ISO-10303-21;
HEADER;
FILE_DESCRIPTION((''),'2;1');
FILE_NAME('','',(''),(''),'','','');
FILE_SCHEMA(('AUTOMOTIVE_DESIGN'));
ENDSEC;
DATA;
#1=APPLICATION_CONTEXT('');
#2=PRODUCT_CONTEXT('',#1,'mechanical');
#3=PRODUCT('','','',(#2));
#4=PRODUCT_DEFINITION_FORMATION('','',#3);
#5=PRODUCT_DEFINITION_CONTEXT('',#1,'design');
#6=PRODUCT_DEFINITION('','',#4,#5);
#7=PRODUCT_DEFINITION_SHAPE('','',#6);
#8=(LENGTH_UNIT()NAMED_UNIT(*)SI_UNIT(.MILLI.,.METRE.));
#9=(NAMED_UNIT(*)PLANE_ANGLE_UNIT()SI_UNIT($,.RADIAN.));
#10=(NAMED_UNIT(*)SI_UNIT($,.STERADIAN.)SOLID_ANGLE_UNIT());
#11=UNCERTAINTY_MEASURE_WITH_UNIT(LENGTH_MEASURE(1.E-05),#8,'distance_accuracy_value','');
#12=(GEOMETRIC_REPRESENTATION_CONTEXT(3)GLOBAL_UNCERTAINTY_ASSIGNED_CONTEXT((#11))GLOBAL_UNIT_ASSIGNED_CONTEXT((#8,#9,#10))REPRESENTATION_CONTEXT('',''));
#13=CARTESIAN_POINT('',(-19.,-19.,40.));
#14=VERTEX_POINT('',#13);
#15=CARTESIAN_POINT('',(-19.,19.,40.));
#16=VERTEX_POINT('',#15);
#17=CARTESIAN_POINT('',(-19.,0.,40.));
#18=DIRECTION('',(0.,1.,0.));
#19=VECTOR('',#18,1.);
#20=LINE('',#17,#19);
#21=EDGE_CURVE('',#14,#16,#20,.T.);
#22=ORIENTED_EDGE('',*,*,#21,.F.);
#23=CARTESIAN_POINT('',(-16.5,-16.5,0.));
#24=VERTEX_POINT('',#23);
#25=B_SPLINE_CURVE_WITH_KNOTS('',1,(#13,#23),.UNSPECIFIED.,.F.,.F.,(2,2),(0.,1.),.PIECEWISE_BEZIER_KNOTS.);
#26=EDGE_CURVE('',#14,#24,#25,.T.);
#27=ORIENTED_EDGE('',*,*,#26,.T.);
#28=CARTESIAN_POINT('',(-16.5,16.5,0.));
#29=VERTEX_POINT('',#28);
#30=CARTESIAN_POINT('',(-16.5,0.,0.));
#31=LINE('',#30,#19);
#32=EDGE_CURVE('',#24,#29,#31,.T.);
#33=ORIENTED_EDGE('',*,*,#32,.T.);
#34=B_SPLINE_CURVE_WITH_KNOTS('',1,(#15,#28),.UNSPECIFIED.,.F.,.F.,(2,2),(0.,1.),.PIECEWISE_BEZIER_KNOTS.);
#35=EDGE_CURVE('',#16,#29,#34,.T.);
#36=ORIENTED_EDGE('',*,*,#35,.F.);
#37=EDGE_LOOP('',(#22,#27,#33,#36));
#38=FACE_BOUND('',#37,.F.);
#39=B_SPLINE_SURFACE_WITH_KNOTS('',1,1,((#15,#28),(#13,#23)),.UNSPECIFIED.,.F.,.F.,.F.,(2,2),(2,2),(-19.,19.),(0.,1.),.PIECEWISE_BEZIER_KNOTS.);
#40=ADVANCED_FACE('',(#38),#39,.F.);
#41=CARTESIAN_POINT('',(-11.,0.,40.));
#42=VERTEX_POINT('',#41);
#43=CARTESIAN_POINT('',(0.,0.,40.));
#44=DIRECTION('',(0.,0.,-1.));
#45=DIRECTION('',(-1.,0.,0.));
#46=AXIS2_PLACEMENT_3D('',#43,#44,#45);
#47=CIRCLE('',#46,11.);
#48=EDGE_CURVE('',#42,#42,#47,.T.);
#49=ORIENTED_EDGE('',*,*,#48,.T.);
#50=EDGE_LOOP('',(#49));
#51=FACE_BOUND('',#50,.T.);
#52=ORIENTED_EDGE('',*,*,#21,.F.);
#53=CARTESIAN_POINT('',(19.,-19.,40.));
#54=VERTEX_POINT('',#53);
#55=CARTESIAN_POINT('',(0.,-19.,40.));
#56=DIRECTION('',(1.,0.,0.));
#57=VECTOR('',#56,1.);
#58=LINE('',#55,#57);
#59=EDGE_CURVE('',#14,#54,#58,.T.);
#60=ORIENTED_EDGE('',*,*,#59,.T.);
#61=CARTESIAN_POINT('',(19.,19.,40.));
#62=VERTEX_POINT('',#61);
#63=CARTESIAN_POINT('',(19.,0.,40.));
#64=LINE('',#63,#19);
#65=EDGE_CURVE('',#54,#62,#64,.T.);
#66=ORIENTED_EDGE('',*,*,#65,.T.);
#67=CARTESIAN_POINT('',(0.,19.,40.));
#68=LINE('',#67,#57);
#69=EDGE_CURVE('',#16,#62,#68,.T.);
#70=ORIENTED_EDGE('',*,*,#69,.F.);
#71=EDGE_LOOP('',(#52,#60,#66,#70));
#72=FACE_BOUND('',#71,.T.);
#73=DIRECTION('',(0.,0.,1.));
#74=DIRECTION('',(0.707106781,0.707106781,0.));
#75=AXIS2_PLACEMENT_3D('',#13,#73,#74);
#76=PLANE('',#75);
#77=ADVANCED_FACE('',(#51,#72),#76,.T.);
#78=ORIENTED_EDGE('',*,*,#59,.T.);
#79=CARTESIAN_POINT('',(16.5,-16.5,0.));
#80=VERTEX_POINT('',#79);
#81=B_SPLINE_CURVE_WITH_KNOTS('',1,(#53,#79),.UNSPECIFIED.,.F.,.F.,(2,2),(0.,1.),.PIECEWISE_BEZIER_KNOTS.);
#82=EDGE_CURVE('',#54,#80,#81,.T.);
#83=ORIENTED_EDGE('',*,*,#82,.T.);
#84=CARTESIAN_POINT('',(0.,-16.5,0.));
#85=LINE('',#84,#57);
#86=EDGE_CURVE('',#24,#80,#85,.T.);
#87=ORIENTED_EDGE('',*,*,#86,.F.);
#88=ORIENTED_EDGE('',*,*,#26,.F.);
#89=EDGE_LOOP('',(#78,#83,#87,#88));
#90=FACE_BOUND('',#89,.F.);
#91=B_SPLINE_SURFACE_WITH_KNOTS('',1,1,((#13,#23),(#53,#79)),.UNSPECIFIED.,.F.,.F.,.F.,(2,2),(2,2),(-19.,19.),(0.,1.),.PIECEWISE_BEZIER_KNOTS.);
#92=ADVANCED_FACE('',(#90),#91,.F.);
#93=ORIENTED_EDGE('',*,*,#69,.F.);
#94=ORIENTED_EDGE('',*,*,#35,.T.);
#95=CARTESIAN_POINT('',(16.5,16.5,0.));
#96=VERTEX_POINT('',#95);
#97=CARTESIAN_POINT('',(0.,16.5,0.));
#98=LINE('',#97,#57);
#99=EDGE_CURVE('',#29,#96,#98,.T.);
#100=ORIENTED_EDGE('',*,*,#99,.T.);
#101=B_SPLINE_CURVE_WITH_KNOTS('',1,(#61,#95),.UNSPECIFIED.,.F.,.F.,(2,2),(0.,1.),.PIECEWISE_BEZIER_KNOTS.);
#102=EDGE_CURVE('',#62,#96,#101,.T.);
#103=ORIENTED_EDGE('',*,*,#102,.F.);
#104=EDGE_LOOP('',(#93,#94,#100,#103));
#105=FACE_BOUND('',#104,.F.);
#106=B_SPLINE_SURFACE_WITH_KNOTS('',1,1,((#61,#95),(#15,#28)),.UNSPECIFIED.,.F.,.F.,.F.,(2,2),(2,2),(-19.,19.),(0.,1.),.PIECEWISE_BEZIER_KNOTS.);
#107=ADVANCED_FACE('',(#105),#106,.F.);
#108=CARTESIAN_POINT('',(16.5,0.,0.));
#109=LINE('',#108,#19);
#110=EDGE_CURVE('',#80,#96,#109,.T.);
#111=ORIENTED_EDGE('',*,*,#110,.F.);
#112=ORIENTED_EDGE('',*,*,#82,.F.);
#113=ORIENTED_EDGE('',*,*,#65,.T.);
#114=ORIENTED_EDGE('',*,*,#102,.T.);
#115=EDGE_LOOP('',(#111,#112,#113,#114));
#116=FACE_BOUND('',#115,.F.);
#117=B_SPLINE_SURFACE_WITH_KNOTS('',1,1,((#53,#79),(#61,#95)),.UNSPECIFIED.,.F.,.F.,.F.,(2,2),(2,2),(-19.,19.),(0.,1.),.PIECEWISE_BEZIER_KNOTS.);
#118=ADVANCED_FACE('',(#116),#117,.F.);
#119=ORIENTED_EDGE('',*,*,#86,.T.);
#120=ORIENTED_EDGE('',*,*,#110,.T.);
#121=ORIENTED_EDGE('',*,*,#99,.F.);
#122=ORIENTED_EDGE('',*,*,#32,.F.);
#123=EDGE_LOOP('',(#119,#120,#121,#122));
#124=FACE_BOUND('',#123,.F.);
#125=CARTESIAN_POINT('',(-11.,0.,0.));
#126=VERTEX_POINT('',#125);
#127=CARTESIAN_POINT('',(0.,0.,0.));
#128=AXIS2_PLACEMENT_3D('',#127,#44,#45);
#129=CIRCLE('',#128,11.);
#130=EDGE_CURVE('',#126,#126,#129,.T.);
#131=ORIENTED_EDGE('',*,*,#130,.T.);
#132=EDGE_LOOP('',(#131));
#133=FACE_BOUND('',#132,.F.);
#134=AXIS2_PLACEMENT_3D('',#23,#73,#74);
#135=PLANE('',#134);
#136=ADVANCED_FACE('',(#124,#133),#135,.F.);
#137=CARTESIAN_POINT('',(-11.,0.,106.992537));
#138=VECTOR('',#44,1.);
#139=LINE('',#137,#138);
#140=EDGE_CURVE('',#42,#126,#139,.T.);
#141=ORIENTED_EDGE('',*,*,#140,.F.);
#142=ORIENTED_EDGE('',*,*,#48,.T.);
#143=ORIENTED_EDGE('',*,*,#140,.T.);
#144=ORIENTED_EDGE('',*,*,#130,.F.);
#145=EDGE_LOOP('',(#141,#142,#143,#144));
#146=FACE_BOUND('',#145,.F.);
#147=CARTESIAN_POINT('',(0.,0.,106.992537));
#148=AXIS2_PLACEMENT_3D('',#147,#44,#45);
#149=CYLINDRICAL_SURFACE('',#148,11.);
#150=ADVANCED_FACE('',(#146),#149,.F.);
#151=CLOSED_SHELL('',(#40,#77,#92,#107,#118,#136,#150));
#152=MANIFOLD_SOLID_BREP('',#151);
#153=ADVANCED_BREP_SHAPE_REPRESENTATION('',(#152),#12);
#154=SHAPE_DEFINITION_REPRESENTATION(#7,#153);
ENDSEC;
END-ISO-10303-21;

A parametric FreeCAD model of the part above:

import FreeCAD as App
import Part
import Sketcher

V = App.Vector

doc = App.newDocument("Part")
body = doc.addObject("PartDesign::Body", "Body")

# Sketch on XY plane
sketch1 = body.newObject("Sketcher::SketchObject", "Sketch")
sketch1.AttachmentSupport = (doc.getObject("XY_Plane"), [""])
sketch1.MapMode = "FlatFace"
sketch1.AttachmentOffset = App.Placement(V(0, 0, 40), App.Rotation())
sketch1.addGeometry(Part.LineSegment(V(-19, 19, 0), V(-19, -19, 0)), False)
sketch1.addGeometry(Part.LineSegment(V(-19, -19, 0), V(19, -19, 0)), False)
sketch1.addGeometry(Part.LineSegment(V(19, -19, 0), V(19, 19, 0)), False)
sketch1.addGeometry(Part.LineSegment(V(19, 19, 0), V(-19, 19, 0)), False)
sketch1.addConstraint(Sketcher.Constraint("Coincident", 0, 2, 1, 1))
sketch1.addConstraint(Sketcher.Constraint("Coincident", 1, 2, 2, 1))
sketch1.addConstraint(Sketcher.Constraint("Coincident", 2, 2, 3, 1))
sketch1.addConstraint(Sketcher.Constraint("Coincident", 3, 2, 0, 1))
sketch1.addConstraint(Sketcher.Constraint("Vertical", 0))
sketch1.addConstraint(Sketcher.Constraint("Horizontal", 1))
sketch1.addConstraint(Sketcher.Constraint("Vertical", 2))
sketch1.addConstraint(Sketcher.Constraint("Horizontal", 3))
sketch1.addConstraint(Sketcher.Constraint("Symmetric", 0, 2, 2, 2, -1, 1))
sketch1.addConstraint(Sketcher.Constraint("Equal", 3, 0))
sketch1.addConstraint(Sketcher.Constraint("DistanceX", 1, 1, 1, 2, 38.0))

# Sketch on XY plane
sketch2 = body.newObject("Sketcher::SketchObject", "Sketch001")
sketch2.AttachmentSupport = (doc.getObject("XY_Plane"), [""])
sketch2.MapMode = "FlatFace"
sketch2.addGeometry(Part.LineSegment(V(-16.5, 16.5, 0), V(-16.5, -16.5, 0)), False)
sketch2.addGeometry(Part.LineSegment(V(-16.5, -16.5, 0), V(16.5, -16.5, 0)), False)
sketch2.addGeometry(Part.LineSegment(V(16.5, -16.5, 0), V(16.5, 16.5, 0)), False)
sketch2.addGeometry(Part.LineSegment(V(16.5, 16.5, 0), V(-16.5, 16.5, 0)), False)
sketch2.addConstraint(Sketcher.Constraint("Coincident", 0, 2, 1, 1))
sketch2.addConstraint(Sketcher.Constraint("Coincident", 1, 2, 2, 1))
sketch2.addConstraint(Sketcher.Constraint("Coincident", 2, 2, 3, 1))
sketch2.addConstraint(Sketcher.Constraint("Coincident", 3, 2, 0, 1))
sketch2.addConstraint(Sketcher.Constraint("Vertical", 0))
sketch2.addConstraint(Sketcher.Constraint("Horizontal", 1))
sketch2.addConstraint(Sketcher.Constraint("Vertical", 2))
sketch2.addConstraint(Sketcher.Constraint("Horizontal", 3))
sketch2.addConstraint(Sketcher.Constraint("Symmetric", 0, 2, 2, 2, -1, 1))
sketch2.addConstraint(Sketcher.Constraint("Equal", 3, 0))
sketch2.addConstraint(Sketcher.Constraint("DistanceX", 1, 1, 1, 2, 33.0))

additiveloft = body.newObject("PartDesign::AdditiveLoft", "AdditiveLoft")
additiveloft.Profile = sketch1
additiveloft.Sections = [sketch2]

# Sketch on XY plane
sketch3 = body.newObject("Sketcher::SketchObject", "Sketch002")
sketch3.AttachmentSupport = (doc.getObject("XY_Plane"), [""])
sketch3.MapMode = "FlatFace"
sketch3.AttachmentOffset = App.Placement(V(0, 0, 40), App.Rotation())
sketch3.addGeometry(Part.Circle(V(0, 0, 0), V(0, 0, 1), 11), False)
sketch3.addConstraint(Sketcher.Constraint("Coincident", 0, 3, -1, 1))
sketch3.addConstraint(Sketcher.Constraint("Diameter", 0, 22.0))
doc.recompute()
hole = body.newObject("PartDesign::Hole", "Hole")
hole.Profile = sketch3
hole.ThreadType = "None"
hole.Diameter = 22
hole.DepthType = "ThroughAll"

doc.recompute()
